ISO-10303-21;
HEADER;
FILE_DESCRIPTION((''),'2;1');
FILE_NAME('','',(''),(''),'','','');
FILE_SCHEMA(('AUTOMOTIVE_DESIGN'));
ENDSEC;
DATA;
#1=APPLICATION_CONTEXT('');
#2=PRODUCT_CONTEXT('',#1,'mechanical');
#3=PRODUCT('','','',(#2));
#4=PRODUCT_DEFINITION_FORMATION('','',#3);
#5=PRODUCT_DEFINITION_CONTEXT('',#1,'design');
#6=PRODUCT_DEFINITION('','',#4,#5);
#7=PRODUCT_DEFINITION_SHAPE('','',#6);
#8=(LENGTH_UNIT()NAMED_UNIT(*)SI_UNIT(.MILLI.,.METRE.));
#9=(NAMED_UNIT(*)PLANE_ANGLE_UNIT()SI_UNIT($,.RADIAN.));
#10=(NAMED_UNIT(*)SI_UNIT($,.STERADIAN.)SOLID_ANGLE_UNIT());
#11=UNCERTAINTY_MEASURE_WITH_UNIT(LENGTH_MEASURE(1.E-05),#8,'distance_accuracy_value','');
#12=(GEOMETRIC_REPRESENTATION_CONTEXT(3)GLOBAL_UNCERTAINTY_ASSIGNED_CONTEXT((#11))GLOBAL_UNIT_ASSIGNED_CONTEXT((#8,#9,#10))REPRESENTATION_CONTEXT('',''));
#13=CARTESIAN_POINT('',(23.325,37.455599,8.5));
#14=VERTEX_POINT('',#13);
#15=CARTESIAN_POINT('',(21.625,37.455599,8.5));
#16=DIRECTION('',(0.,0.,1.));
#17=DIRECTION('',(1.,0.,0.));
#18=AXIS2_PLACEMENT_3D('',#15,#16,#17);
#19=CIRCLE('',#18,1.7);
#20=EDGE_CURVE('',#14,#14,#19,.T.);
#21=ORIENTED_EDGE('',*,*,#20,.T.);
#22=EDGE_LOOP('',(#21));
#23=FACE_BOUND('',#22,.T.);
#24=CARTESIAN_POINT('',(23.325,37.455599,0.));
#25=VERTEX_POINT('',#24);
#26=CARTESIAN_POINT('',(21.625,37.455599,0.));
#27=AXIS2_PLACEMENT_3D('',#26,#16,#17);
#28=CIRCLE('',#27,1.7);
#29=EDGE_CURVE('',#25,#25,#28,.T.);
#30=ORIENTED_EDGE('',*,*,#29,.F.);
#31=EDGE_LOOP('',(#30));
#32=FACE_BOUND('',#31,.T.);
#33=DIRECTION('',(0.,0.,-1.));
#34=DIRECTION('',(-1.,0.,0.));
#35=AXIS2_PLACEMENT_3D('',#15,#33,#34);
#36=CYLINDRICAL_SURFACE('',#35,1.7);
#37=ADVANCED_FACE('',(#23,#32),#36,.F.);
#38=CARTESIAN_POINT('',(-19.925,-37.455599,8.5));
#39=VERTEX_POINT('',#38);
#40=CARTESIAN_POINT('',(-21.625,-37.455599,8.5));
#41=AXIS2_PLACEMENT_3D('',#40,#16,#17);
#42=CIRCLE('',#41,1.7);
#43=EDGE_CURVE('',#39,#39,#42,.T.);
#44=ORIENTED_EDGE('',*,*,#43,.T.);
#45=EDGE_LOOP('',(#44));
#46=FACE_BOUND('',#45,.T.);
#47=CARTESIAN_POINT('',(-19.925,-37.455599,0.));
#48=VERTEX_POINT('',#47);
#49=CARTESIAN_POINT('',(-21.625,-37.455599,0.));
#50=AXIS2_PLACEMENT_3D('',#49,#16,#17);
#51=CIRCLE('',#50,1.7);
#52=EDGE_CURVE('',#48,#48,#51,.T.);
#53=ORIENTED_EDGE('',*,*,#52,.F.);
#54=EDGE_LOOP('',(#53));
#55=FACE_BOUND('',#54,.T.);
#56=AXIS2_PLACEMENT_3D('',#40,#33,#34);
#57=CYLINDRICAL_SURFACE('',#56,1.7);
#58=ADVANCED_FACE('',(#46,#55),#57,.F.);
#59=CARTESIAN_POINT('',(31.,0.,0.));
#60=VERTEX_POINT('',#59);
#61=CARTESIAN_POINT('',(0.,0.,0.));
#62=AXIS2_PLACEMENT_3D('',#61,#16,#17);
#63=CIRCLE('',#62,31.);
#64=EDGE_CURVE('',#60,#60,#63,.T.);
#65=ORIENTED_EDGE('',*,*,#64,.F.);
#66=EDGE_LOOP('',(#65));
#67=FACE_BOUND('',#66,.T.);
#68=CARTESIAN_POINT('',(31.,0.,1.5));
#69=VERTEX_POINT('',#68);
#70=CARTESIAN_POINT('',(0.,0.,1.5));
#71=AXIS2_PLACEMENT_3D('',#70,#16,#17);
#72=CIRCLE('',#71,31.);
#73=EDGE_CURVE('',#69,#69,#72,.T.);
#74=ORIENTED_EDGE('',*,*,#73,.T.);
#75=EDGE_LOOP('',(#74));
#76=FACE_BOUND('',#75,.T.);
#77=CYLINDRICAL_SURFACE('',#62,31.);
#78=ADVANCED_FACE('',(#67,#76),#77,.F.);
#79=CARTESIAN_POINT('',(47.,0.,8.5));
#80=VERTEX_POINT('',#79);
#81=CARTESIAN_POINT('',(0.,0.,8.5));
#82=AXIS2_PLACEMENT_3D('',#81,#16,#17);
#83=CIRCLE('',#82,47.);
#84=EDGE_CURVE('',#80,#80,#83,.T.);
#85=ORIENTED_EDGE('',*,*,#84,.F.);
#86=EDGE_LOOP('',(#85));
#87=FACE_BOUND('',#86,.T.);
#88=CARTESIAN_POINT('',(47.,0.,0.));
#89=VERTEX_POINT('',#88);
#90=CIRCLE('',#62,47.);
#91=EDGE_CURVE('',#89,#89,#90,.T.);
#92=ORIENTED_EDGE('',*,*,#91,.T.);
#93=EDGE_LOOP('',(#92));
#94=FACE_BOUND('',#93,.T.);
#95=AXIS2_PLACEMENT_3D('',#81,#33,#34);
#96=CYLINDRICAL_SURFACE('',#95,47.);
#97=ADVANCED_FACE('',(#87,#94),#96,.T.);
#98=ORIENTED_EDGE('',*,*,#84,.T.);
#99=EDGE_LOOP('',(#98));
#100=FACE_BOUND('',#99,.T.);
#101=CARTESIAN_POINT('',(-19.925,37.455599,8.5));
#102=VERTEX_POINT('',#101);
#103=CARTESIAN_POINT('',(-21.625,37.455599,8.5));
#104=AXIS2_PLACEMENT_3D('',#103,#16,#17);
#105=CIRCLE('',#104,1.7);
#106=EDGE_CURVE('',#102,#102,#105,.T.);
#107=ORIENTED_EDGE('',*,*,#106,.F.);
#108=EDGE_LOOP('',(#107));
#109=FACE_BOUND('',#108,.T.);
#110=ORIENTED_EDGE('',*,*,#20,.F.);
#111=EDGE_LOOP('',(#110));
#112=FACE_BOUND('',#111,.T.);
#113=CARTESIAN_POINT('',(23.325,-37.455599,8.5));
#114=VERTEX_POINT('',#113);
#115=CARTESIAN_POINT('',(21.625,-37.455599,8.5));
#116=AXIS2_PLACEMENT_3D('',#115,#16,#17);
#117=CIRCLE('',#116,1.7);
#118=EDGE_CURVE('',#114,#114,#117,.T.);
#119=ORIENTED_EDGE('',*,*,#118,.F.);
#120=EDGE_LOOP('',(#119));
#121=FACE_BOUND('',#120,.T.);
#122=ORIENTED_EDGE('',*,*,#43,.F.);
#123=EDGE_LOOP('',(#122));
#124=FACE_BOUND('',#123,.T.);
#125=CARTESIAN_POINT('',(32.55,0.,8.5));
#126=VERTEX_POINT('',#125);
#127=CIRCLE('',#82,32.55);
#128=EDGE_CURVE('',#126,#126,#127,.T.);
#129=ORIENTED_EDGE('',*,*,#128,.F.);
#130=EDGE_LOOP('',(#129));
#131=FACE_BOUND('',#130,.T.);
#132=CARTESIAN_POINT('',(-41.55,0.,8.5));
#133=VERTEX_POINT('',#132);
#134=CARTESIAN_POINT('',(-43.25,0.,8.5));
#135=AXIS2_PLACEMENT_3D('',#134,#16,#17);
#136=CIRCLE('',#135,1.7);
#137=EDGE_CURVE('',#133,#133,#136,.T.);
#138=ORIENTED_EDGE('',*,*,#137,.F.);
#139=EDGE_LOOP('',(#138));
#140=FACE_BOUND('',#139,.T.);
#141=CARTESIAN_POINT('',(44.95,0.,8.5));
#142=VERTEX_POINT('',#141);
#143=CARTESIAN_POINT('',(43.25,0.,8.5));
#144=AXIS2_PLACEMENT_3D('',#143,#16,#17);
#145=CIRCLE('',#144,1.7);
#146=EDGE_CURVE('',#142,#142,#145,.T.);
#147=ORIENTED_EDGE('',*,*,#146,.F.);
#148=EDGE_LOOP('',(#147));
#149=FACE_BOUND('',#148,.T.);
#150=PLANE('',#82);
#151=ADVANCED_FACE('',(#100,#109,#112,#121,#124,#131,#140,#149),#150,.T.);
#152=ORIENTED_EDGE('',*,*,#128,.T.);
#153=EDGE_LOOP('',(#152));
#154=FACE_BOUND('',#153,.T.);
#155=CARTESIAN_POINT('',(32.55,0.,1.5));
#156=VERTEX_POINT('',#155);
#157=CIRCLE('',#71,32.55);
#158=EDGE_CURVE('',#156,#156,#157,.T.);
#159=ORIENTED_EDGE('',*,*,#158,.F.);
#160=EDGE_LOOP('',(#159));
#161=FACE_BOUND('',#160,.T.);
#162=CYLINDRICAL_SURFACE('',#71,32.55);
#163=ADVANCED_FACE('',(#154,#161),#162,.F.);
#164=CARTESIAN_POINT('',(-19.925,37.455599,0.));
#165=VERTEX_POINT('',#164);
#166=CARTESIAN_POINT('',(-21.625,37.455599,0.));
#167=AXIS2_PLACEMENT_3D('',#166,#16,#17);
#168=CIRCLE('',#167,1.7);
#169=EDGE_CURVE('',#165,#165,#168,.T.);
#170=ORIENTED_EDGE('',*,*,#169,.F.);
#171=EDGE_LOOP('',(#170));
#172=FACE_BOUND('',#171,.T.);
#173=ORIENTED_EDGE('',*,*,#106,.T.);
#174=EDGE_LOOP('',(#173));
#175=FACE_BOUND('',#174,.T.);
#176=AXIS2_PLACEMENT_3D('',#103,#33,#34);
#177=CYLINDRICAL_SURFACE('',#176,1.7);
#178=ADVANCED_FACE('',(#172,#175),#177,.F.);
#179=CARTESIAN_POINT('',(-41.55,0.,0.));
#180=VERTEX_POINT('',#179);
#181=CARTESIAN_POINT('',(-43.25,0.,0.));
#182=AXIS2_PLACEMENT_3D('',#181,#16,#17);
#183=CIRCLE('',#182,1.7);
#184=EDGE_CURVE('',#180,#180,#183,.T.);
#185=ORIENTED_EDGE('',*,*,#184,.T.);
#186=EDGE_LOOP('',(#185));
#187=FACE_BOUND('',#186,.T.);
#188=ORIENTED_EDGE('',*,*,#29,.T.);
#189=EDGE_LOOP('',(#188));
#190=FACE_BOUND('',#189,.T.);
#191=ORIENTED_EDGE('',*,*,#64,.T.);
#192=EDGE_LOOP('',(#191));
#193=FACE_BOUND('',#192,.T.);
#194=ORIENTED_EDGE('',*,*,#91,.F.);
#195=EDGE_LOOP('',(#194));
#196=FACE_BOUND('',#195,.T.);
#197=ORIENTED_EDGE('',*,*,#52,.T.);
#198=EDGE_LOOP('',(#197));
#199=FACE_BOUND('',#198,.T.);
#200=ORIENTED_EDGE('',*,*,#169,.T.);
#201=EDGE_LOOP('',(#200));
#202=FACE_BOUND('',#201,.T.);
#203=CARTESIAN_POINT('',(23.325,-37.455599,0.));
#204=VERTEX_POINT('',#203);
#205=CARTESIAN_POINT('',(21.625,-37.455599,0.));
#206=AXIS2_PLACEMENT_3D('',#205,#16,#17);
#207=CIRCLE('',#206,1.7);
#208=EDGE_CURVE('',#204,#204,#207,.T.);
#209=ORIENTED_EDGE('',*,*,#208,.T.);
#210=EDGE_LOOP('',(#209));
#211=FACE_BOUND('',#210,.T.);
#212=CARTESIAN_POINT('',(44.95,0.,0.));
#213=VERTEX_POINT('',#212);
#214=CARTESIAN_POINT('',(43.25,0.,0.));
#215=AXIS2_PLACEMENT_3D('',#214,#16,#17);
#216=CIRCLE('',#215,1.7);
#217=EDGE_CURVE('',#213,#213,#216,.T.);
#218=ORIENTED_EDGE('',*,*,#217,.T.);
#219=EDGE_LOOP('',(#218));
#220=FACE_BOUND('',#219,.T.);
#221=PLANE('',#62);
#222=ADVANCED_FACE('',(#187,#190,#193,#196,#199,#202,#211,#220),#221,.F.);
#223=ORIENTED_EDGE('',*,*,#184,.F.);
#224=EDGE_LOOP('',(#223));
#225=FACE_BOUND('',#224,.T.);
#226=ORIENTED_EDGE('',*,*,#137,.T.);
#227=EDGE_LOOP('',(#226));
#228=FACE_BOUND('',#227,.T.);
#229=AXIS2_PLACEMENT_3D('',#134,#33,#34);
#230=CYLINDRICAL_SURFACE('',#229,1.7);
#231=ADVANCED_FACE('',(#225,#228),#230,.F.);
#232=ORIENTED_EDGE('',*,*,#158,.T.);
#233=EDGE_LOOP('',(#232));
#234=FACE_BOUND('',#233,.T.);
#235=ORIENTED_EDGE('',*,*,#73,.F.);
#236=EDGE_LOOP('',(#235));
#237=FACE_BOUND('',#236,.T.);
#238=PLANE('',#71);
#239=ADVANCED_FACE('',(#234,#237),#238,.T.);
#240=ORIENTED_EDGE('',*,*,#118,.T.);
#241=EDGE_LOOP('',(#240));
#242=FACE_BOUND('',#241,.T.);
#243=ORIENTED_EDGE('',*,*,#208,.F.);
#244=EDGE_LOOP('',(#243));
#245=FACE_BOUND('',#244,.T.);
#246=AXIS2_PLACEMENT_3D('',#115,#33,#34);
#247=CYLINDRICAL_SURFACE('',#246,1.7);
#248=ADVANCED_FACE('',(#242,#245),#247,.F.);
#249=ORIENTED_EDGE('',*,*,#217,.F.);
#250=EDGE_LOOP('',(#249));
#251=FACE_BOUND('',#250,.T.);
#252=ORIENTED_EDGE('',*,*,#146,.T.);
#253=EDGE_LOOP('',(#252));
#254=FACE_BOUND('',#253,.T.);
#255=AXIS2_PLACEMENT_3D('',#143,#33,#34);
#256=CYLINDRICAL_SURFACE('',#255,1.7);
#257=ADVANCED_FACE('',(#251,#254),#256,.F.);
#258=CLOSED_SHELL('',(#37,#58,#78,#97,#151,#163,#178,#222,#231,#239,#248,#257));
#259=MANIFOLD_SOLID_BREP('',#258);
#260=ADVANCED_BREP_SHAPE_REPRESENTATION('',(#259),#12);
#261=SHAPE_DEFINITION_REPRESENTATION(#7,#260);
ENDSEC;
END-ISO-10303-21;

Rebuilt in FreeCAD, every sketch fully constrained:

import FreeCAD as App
import Part
import Sketcher

V = App.Vector

doc = App.newDocument("Part")
body = doc.addObject("PartDesign::Body", "Body")

# Sketch on XY plane
sketch1 = doc.addObject("Sketcher::SketchObject", "Sketch")
body.addObject(sketch1)
sketch1.AttachmentSupport = (doc.XY_Plane, [""])
sketch1.MapMode = "FlatFace"
sketch1.addGeometry(Part.Circle(V(0, 0, 0), V(0, 0, 1), 47), False)
sketch1.addConstraint(Sketcher.Constraint("Coincident", 0, 3, -1, 1))
sketch1.addConstraint(Sketcher.Constraint("Diameter", 0, 94.0))
pad1 = doc.addObject("PartDesign::Pad", "Pad")
body.addObject(pad1)
pad1.Profile = sketch1
pad1.Length = 8.5

# Sketch on XY plane
sketch2 = doc.addObject("Sketcher::SketchObject", "Sketch001")
body.addObject(sketch2)
sketch2.AttachmentSupport = (doc.XY_Plane, [""])
sketch2.MapMode = "FlatFace"
sketch2.AttachmentOffset = App.Placement(V(0, 0, 8.5), App.Rotation())
sketch2.addGeometry(Part.Circle(V(0, 0, 0), V(0, 0, 1), 32.55), False)
sketch2.addConstraint(Sketcher.Constraint("Coincident", 0, 3, -1, 1))
sketch2.addConstraint(Sketcher.Constraint("Diameter", 0, 65.1))
pocket1 = doc.addObject("PartDesign::Pocket", "Pocket")
body.addObject(pocket1)
pocket1.Profile = sketch2
pocket1.Length = 7

# Sketch on XY plane
sketch3 = doc.addObject("Sketcher::SketchObject", "Sketch002")
body.addObject(sketch3)
sketch3.AttachmentSupport = (doc.XY_Plane, [""])
sketch3.MapMode = "FlatFace"
sketch3.AttachmentOffset = App.Placement(V(0, 0, 1.5), App.Rotation())
sketch3.addGeometry(Part.Circle(V(0, 0, 0), V(0, 0, 1), 31), False)
sketch3.addConstraint(Sketcher.Constraint("Coincident", 0, 3, -1, 1))
sketch3.addConstraint(Sketcher.Constraint("Diameter", 0, 62.0))
pocket2 = doc.addObject("PartDesign::Pocket", "Pocket001")
body.addObject(pocket2)
pocket2.Profile = sketch3
pocket2.Type = "ThroughAll"

# Sketch on XY plane
sketch4 = doc.addObject("Sketcher::SketchObject", "Sketch003")
body.addObject(sketch4)
sketch4.AttachmentSupport = (doc.XY_Plane, [""])
sketch4.MapMode = "FlatFace"
sketch4.addGeometry(Part.Circle(V(-43.25, 0, 0), V(0, 0, 1), 1.7), False)
sketch4.addGeometry(Part.Circle(V(-21.625, 37.455599, 0), V(0, 0, 1), 1.7), False)
sketch4.addGeometry(Part.Circle(V(21.625, 37.455599, 0), V(0, 0, 1), 1.7), False)
sketch4.addGeometry(Part.Circle(V(43.25, 0, 0), V(0, 0, 1), 1.7), False)
sketch4.addGeometry(Part.Circle(V(21.625, -37.455599, 0), V(0, 0, 1), 1.7), False)
sketch4.addGeometry(Part.Circle(V(-21.625, -37.455599, 0), V(0, 0, 1), 1.7), False)
sketch4.addConstraint(Sketcher.Constraint("Equal", 0, 1))
sketch4.addConstraint(Sketcher.Constraint("Equal", 1, 2))
sketch4.addConstraint(Sketcher.Constraint("Equal", 2, 3))
sketch4.addConstraint(Sketcher.Constraint("Equal", 3, 4))
sketch4.addConstraint(Sketcher.Constraint("Equal", 4, 5))
sketch4.addConstraint(Sketcher.Constraint("Symmetric", 0, 3, 3, 3, -1, 1))
sketch4.addConstraint(Sketcher.Constraint("Symmetric", 1, 3, 4, 3, -1, 1))
sketch4.addConstraint(Sketcher.Constraint("Symmetric", 2, 3, 5, 3, -1, 1))
sketch4.addConstraint(Sketcher.Constraint("Symmetric", 1, 3, 2, 3, -2))
sketch4.addConstraint(Sketcher.Constraint("PointOnObject", 0, 3, -1))
sketch4.addConstraint(Sketcher.Constraint("Diameter", 0, 3.4))
sketch4.addConstraint(Sketcher.Constraint("DistanceX", 0, 3, 3, 3, 86.5))
sketch4.addConstraint(Sketcher.Constraint("DistanceX", 1, 3, 2, 3, 43.25))
sketch4.addConstraint(Sketcher.Constraint("DistanceY", -1, 1, 1, 3, 37.455599))
pocket3 = doc.addObject("PartDesign::Pocket", "Pocket002")
body.addObject(pocket3)
pocket3.Profile = sketch4
pocket3.Type = "ThroughAll"
pocket3.Reversed = True

doc.recompute()
